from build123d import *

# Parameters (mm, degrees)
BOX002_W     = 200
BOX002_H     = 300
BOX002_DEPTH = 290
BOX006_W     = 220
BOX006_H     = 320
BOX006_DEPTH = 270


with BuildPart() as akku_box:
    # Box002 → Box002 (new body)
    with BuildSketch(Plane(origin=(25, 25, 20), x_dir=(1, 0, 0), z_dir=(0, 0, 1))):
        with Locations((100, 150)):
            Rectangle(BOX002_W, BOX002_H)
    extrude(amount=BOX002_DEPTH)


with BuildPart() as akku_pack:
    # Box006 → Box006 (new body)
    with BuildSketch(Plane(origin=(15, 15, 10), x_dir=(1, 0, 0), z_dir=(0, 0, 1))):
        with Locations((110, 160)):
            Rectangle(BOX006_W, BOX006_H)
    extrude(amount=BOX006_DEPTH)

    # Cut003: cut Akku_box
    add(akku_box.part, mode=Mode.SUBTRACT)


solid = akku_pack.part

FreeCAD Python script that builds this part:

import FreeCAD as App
import Part
import Sketcher

doc = App.newDocument("Part")
body = doc.addObject("PartDesign::Body", "Body")

# Sketch on XY plane
sketch1 = body.newObject("Sketcher::SketchObject", "Sketch")
sketch1.AttachmentSupport = (doc.getObject("XY_Plane"), [""])
sketch1.MapMode = "FlatFace"
sketch1.AttachmentOffset = App.Placement(App.Vector(0, 0, 20), App.Rotation())
sketch1.addGeometry(Part.LineSegment(App.Vector(25, 325, 0), App.Vector(25, 25, 0)), False)
sketch1.addGeometry(Part.LineSegment(App.Vector(25, 25, 0), App.Vector(225, 25, 0)), False)
sketch1.addGeometry(Part.LineSegment(App.Vector(225, 25, 0), App.Vector(225, 325, 0)), False)
sketch1.addGeometry(Part.LineSegment(App.Vector(225, 325, 0), App.Vector(25, 325, 0)), False)
sketch1.addConstraint(Sketcher.Constraint("Coincident", 0, 2, 1, 1))
sketch1.addConstraint(Sketcher.Constraint("Coincident", 1, 2, 2, 1))
sketch1.addConstraint(Sketcher.Constraint("Coincident", 2, 2, 3, 1))
sketch1.addConstraint(Sketcher.Constraint("Coincident", 3, 2, 0, 1))
sketch1.addConstraint(Sketcher.Constraint("Vertical", 0))
sketch1.addConstraint(Sketcher.Constraint("Horizontal", 1))
sketch1.addConstraint(Sketcher.Constraint("Vertical", 2))
sketch1.addConstraint(Sketcher.Constraint("Horizontal", 3))
sketch1.addConstraint(Sketcher.Constraint("DistanceX", 1, 1, 1, 2, 200.0))
sketch1.addConstraint(Sketcher.Constraint("DistanceY", 0, 2, 0, 1, 300.0))
sketch1.addConstraint(Sketcher.Constraint("DistanceX", -1, 1, 0, 2, 25.0))
sketch1.addConstraint(Sketcher.Constraint("DistanceY", -1, 1, 0, 2, 25.0))
pad1 = body.newObject("PartDesign::Pad", "Pad")
pad1.Profile = sketch1
pad1.Length = 290
body2 = doc.addObject("PartDesign::Body", "Body001")

# Sketch on XY plane
sketch2 = body2.newObject("Sketcher::SketchObject", "Sketch001")
sketch2.AttachmentSupport = (doc.getObject("XY_Plane001"), [""])
sketch2.MapMode = "FlatFace"
sketch2.AttachmentOffset = App.Placement(App.Vector(0, 0, 10), App.Rotation())
sketch2.addGeometry(Part.LineSegment(App.Vector(15, 335, 0), App.Vector(15, 15, 0)), False)
sketch2.addGeometry(Part.LineSegment(App.Vector(15, 15, 0), App.Vector(235, 15, 0)), False)
sketch2.addGeometry(Part.LineSegment(App.Vector(235, 15, 0), App.Vector(235, 335, 0)), False)
sketch2.addGeometry(Part.LineSegment(App.Vector(235, 335, 0), App.Vector(15, 335, 0)), False)
sketch2.addConstraint(Sketcher.Constraint("Coincident", 0, 2, 1, 1))
sketch2.addConstraint(Sketcher.Constraint("Coincident", 1, 2, 2, 1))
sketch2.addConstraint(Sketcher.Constraint("Coincident", 2, 2, 3, 1))
sketch2.addConstraint(Sketcher.Constraint("Coincident", 3, 2, 0, 1))
sketch2.addConstraint(Sketcher.Constraint("Vertical", 0))
sketch2.addConstraint(Sketcher.Constraint("Horizontal", 1))
sketch2.addConstraint(Sketcher.Constraint("Vertical", 2))
sketch2.addConstraint(Sketcher.Constraint("Horizontal", 3))
sketch2.addConstraint(Sketcher.Constraint("DistanceX", 1, 1, 1, 2, 220.0))
sketch2.addConstraint(Sketcher.Constraint("DistanceY", 0, 2, 0, 1, 320.0))
sketch2.addConstraint(Sketcher.Constraint("DistanceX", -1, 1, 0, 2, 15.0))
sketch2.addConstraint(Sketcher.Constraint("DistanceY", -1, 1, 0, 2, 15.0))
pad2 = body2.newObject("PartDesign::Pad", "Pad001")
pad2.Profile = sketch2
pad2.Length = 270
doc.recompute()

boolean = body2.newObject("PartDesign::Boolean", "Boolean")
boolean.Type = "Cut"
boolean.addObjects([body])

doc.recompute()
